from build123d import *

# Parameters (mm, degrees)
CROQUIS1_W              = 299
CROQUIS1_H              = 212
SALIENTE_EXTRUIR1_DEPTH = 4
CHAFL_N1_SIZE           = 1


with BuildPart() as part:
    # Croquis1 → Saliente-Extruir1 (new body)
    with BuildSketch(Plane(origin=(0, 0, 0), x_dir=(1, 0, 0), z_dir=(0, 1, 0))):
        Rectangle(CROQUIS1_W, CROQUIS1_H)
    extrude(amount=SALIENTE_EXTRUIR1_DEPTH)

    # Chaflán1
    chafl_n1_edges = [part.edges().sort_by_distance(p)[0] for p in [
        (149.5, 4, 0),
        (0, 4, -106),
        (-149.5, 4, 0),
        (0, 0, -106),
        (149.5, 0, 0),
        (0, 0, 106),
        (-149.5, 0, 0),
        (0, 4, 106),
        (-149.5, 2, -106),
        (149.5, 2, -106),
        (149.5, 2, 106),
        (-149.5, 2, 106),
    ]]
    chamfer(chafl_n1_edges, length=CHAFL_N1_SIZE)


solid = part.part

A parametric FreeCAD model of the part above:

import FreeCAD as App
import Part
import Sketcher

V = App.Vector
Q = App.Units.Quantity


def add_polygon(sketch, points):
    """Adds a closed chain of lines whose ends are joined by coincident constraints."""
    first, n = sketch.GeometryCount, len(points)
    for a, b in zip(points, points[1:] + points[:1]):
        sketch.addGeometry(Part.LineSegment(App.Vector(*a, 0), App.Vector(*b, 0)), False)
    for i in range(n):
        sketch.addConstraint(Sketcher.Constraint("Coincident", first + i, 2, first + (i + 1) % n, 1))

doc = App.newDocument("Part")
body = doc.addObject("PartDesign::Body", "Body")

# Sketch on XZ plane
sketch1 = body.newObject("Sketcher::SketchObject", "Sketch")
sketch1.AttachmentSupport = (doc.getObject("XZ_Plane"), [""])
sketch1.MapMode = "FlatFace"
add_polygon(sketch1, [(-150, -106), (-150, 106), (150, 106), (150, -106)])  # lines 0-3
sketch1.addConstraint([
    Sketcher.Constraint("Vertical", 0),
    Sketcher.Constraint("Horizontal", 1),
    Sketcher.Constraint("Vertical", 2),
    Sketcher.Constraint("Horizontal", 3),
    Sketcher.Constraint("Symmetric", 0, 2, 2, 2, -1, 1),
    Sketcher.Constraint("DistanceX", 1, 1, 1, 2, Q("299 mm")),
    Sketcher.Constraint("DistanceY", 0, 1, 0, 2, Q("212 mm")),
])
pad1 = body.newObject("PartDesign::Pad", "Pad")
pad1.Profile = sketch1
pad1.Length = 4
pad1.Reversed = True
doc.recompute()

chamfer = body.newObject("PartDesign::Chamfer", "Chamfer")
chamfer.Base = (pad1, ["Edge1"])
chamfer.UseAllEdges = True
chamfer.Size = 1

doc.recompute()
